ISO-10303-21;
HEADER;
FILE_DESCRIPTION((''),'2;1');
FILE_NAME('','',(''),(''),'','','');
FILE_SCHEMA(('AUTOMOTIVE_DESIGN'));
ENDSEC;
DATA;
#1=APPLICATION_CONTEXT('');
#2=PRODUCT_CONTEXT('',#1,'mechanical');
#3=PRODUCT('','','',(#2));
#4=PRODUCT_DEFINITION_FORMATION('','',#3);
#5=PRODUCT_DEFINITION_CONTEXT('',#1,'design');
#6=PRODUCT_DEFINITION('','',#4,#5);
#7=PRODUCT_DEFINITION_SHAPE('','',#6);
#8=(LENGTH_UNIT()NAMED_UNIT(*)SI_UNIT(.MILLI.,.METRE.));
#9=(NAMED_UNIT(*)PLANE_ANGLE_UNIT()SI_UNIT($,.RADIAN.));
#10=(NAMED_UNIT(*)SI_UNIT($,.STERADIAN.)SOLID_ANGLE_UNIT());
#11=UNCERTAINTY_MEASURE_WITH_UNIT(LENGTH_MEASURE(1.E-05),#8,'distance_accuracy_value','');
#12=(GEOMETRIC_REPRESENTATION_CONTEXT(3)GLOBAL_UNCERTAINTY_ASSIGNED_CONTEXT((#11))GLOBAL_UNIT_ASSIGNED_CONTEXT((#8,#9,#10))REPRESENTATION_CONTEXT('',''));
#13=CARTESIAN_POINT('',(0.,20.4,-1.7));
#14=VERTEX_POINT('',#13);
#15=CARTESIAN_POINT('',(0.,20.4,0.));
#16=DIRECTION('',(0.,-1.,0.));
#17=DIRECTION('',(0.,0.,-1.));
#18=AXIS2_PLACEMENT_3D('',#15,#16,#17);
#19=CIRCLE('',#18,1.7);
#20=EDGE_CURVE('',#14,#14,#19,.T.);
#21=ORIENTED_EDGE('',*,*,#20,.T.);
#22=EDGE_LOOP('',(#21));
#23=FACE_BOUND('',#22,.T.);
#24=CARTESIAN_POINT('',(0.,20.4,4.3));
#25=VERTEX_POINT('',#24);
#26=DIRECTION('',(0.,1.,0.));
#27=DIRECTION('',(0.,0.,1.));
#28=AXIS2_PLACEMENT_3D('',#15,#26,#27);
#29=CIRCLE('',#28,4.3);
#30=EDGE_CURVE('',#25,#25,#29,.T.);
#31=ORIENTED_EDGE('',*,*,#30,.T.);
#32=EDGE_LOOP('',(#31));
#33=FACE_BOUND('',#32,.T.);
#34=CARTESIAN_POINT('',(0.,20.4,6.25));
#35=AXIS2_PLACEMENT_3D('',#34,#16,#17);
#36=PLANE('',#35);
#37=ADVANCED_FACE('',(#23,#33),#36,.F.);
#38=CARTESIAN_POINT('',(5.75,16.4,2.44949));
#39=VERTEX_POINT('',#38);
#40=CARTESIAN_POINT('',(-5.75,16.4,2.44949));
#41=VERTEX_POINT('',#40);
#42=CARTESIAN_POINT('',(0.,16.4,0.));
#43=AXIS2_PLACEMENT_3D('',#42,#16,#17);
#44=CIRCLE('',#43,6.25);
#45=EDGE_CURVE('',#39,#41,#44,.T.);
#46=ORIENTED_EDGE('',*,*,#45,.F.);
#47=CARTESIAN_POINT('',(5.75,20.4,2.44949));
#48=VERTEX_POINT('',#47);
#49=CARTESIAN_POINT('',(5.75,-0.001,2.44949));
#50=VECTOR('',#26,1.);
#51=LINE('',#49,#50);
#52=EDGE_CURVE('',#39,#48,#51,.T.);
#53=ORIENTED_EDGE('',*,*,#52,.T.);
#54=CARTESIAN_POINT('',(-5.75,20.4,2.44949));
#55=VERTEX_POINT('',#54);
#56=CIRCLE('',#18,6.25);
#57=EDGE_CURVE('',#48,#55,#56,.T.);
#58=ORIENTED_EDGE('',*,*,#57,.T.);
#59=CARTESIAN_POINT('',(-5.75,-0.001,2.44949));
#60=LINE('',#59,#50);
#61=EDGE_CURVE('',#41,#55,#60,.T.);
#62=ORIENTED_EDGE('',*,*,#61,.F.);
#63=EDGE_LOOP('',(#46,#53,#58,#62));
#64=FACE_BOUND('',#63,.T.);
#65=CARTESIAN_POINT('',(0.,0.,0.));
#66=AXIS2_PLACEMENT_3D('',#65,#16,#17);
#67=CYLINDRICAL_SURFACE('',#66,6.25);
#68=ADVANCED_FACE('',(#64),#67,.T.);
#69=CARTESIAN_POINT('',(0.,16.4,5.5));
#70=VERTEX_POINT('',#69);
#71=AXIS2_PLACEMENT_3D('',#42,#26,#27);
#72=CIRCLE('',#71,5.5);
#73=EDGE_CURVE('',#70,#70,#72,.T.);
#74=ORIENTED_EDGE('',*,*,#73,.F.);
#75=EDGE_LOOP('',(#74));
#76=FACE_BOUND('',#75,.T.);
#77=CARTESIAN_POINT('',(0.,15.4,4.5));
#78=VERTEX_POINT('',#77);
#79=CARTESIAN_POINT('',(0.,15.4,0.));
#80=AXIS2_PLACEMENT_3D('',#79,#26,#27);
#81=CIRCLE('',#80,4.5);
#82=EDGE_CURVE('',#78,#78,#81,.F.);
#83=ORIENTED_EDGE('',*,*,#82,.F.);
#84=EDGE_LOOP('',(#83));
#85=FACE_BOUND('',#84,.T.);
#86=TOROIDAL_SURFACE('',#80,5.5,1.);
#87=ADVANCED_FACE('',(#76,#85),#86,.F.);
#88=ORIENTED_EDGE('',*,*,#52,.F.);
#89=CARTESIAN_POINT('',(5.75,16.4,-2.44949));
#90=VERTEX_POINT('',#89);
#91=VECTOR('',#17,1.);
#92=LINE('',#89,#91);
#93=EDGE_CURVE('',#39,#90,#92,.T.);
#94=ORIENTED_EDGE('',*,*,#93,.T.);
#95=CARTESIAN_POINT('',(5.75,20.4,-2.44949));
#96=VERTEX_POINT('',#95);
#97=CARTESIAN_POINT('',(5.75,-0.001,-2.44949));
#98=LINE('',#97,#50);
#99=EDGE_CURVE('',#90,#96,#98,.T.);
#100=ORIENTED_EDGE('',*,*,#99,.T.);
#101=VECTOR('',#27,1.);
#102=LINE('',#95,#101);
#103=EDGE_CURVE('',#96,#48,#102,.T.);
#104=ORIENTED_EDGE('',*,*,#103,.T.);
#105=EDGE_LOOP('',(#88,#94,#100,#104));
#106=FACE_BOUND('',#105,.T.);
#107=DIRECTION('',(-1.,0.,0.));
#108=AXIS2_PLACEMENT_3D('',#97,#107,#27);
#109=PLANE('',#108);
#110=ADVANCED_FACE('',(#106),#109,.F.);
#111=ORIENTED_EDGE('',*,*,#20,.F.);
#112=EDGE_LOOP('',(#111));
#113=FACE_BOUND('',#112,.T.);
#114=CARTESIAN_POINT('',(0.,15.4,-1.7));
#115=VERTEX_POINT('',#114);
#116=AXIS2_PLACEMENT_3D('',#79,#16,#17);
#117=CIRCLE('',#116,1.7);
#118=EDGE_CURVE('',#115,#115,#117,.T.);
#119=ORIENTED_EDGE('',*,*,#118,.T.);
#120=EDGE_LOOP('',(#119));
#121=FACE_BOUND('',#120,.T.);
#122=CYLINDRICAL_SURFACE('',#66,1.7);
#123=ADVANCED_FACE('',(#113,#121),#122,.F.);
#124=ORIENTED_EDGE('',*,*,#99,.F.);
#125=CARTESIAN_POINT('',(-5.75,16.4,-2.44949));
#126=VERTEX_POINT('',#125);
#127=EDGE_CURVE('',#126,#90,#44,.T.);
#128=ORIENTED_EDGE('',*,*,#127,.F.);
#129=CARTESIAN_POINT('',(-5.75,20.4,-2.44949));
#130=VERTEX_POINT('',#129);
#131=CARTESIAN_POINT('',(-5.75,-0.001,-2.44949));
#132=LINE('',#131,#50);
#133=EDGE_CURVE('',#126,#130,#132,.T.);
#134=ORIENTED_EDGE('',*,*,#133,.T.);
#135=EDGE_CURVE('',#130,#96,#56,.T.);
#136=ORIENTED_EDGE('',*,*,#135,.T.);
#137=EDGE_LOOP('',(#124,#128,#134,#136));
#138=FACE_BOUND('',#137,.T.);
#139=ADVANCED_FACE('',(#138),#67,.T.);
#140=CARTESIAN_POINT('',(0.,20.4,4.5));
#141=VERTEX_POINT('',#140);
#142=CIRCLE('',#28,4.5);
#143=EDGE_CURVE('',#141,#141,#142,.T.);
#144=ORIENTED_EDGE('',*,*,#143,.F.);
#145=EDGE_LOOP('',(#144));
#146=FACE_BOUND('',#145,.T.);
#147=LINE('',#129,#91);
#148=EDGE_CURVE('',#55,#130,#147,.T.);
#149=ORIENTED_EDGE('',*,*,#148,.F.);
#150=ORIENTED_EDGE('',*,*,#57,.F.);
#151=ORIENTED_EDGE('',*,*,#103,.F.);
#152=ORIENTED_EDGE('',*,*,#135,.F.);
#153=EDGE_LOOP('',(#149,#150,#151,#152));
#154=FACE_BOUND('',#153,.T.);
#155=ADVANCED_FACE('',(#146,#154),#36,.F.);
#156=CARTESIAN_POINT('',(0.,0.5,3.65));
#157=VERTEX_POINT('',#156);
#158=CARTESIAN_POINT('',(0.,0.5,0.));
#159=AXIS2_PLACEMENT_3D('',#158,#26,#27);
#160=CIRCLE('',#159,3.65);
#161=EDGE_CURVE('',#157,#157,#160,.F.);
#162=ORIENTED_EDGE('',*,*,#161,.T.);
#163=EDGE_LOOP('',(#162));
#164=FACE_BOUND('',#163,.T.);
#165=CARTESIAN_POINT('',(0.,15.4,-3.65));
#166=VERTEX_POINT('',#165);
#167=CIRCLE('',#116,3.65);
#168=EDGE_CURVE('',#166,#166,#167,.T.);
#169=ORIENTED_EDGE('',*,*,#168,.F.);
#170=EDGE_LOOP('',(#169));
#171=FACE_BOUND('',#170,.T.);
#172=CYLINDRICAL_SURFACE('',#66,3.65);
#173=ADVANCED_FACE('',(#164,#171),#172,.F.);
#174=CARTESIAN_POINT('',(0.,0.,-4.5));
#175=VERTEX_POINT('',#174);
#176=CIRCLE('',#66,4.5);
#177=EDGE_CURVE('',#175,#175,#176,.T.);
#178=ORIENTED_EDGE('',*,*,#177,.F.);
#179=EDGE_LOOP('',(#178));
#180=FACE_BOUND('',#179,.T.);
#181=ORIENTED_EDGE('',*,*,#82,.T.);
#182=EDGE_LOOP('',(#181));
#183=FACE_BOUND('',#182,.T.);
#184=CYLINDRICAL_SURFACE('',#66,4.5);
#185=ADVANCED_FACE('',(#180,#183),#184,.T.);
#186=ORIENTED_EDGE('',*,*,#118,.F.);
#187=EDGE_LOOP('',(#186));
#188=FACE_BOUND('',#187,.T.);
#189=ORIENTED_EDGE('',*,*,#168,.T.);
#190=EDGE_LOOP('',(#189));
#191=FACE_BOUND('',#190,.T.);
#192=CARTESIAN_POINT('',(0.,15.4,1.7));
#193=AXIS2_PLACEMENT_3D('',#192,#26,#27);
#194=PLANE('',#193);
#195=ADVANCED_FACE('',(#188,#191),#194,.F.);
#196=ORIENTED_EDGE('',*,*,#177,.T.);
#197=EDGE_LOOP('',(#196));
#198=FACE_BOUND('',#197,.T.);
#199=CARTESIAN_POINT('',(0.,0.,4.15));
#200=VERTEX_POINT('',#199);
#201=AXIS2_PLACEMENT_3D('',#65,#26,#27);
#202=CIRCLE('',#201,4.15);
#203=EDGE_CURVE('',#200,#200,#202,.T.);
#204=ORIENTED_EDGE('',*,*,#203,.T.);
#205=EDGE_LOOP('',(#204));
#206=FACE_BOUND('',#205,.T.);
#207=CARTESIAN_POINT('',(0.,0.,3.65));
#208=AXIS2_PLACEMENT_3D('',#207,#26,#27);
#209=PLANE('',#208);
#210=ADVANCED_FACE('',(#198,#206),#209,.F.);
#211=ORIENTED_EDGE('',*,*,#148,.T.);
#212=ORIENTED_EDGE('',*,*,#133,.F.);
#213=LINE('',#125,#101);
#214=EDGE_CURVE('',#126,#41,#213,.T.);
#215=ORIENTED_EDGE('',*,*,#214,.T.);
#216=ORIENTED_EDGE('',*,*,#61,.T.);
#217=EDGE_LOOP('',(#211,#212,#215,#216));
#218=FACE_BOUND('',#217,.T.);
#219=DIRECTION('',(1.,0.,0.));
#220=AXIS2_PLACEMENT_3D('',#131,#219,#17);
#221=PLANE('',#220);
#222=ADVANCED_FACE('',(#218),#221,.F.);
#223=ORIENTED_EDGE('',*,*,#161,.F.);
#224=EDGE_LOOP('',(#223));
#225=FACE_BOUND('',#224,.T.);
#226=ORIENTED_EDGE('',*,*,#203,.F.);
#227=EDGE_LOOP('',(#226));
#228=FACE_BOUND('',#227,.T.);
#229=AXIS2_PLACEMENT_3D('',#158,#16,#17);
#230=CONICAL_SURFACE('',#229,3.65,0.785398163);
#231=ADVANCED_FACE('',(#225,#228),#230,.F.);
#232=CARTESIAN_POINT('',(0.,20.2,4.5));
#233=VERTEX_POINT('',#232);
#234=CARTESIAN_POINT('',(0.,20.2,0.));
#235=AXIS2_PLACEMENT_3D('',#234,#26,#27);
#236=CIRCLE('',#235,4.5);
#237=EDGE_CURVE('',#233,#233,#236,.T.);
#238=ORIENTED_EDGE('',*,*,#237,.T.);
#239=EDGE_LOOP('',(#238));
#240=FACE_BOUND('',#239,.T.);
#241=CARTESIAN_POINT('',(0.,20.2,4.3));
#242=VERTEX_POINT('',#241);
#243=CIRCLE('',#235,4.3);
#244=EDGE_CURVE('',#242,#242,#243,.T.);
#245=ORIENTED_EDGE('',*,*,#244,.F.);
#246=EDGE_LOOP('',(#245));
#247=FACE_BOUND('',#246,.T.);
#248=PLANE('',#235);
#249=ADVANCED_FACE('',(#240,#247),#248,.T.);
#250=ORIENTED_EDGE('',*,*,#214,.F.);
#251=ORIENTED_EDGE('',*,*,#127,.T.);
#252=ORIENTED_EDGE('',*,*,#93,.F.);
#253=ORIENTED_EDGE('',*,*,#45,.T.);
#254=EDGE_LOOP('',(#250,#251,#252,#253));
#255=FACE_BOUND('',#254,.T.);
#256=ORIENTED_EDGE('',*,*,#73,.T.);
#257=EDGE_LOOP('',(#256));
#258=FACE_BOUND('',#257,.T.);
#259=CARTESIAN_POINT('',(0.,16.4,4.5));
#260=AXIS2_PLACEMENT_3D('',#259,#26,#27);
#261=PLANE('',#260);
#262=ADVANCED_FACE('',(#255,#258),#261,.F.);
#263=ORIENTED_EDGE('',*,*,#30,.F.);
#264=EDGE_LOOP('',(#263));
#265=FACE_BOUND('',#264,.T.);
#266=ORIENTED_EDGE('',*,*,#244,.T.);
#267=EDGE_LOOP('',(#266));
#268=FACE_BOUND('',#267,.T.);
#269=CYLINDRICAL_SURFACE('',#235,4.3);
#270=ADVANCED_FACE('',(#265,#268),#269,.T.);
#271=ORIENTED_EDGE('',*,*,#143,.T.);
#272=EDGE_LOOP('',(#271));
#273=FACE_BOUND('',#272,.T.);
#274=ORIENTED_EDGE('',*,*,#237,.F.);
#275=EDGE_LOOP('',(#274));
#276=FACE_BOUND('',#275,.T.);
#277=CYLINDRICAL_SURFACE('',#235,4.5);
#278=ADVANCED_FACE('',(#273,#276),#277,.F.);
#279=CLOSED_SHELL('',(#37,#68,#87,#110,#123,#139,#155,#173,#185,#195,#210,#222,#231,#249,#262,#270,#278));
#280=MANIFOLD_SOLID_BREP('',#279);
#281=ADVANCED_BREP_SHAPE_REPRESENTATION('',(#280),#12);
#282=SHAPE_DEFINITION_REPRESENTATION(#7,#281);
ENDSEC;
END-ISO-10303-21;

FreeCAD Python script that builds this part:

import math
import FreeCAD as App
import Part
import Sketcher

V = App.Vector


def edges_at(feature, points):
    """Names of the edges that pass closest to the given points."""
    edges = feature.Shape.Edges
    near = lambda p: min(range(len(edges)), key=lambda i: edges[i].distToShape(Part.Vertex(*p))[0])
    return sorted({f"Edge{near(p) + 1}" for p in points})

doc = App.newDocument("Part")
body = doc.addObject("PartDesign::Body", "Body")

# Sketch on YZ plane
sketch1 = body.newObject("Sketcher::SketchObject", "Sketch")
sketch1.AttachmentSupport = (doc.getObject("YZ_Plane"), [""])
sketch1.MapMode = "FlatFace"
sketch1.addGeometry(Part.LineSegment(V(0, 4.5, 0), V(0, 3.65, 0)), False)
sketch1.addGeometry(Part.LineSegment(V(0, 3.65, 0), V(15.4, 3.65, 0)), False)
sketch1.addGeometry(Part.LineSegment(V(15.4, 3.65, 0), V(15.4, 1.7, 0)), False)
sketch1.addGeometry(Part.LineSegment(V(15.4, 1.7, 0), V(20.4, 1.7, 0)), False)
sketch1.addGeometry(Part.LineSegment(V(20.4, 1.7, 0), V(20.4, 6.25, 0)), False)
sketch1.addGeometry(Part.LineSegment(V(20.4, 6.25, 0), V(16.4, 6.25, 0)), False)
sketch1.addGeometry(Part.LineSegment(V(16.4, 6.25, 0), V(16.4, 4.5, 0)), False)
sketch1.addGeometry(Part.LineSegment(V(16.4, 4.5, 0), V(0, 4.5, 0)), False)
sketch1.addConstraint(Sketcher.Constraint("Coincident", 0, 2, 1, 1))
sketch1.addConstraint(Sketcher.Constraint("Coincident", 1, 2, 2, 1))
sketch1.addConstraint(Sketcher.Constraint("Coincident", 2, 2, 3, 1))
sketch1.addConstraint(Sketcher.Constraint("Coincident", 3, 2, 4, 1))
sketch1.addConstraint(Sketcher.Constraint("Coincident", 4, 2, 5, 1))
sketch1.addConstraint(Sketcher.Constraint("Coincident", 5, 2, 6, 1))
sketch1.addConstraint(Sketcher.Constraint("Coincident", 6, 2, 7, 1))
sketch1.addConstraint(Sketcher.Constraint("Coincident", 7, 2, 0, 1))
sketch1.addConstraint(Sketcher.Constraint("Vertical", 0))
sketch1.addConstraint(Sketcher.Constraint("Horizontal", 1))
sketch1.addConstraint(Sketcher.Constraint("Vertical", 2))
sketch1.addConstraint(Sketcher.Constraint("Horizontal", 3))
sketch1.addConstraint(Sketcher.Constraint("Vertical", 4))
sketch1.addConstraint(Sketcher.Constraint("Horizontal", 5))
sketch1.addConstraint(Sketcher.Constraint("Vertical", 6))
sketch1.addConstraint(Sketcher.Constraint("Horizontal", 7))
sketch1.addConstraint(Sketcher.Constraint("PointOnObject", 0, 2, -2))
sketch1.addConstraint(Sketcher.Constraint("DistanceX", 3, 1, 3, 2, 5.0))
sketch1.addConstraint(Sketcher.Constraint("DistanceX", 5, 2, 5, 1, 4.0))
sketch1.addConstraint(Sketcher.Constraint("DistanceX", 1, 1, 1, 2, 15.4))
sketch1.addConstraint(Sketcher.Constraint("DistanceY", 0, 2, 0, 1, 0.85))
sketch1.addConstraint(Sketcher.Constraint("DistanceY", 2, 2, 2, 1, 1.95))
sketch1.addConstraint(Sketcher.Constraint("DistanceY", 4, 1, 4, 2, 4.55))
sketch1.addConstraint(Sketcher.Constraint("DistanceY", -1, 1, 2, 2, 1.7))
revolution = body.newObject("PartDesign::Revolution", "Revolution")
revolution.Profile = sketch1
revolution.ReferenceAxis = (sketch1, ["H_Axis"])
revolution.Angle = 360
doc.recompute()

chamfer = body.newObject("PartDesign::Chamfer", "Chamfer")
chamfer.Base = (revolution, edges_at(revolution, [(0, 0, 3.65)]))
chamfer.Size = 0.5
doc.recompute()

fillet = body.newObject("PartDesign::Fillet", "Fillet")
fillet.Base = (chamfer, edges_at(chamfer, [(0, 16.4, 4.5)]))
fillet.Radius = 1

# Sketch on XZ plane
sketch2 = body.newObject("Sketcher::SketchObject", "Sketch001")
sketch2.AttachmentSupport = (doc.getObject("XZ_Plane"), [""])
sketch2.MapMode = "FlatFace"
sketch2.AttachmentOffset = App.Placement(V(0, 0, -20.4), App.Rotation())
sketch2.addGeometry(Part.LineSegment(V(-5.75, 2.44949, 0), V(-5.75, -2.44949, 0)), False)
sketch2.addGeometry(Part.ArcOfCircle(Part.Circle(V(0, 0, 0), V(0, 0, 1), 6.25), math.radians(156.926082), math.radians(203.073918)), False)
sketch2.addConstraint(Sketcher.Constraint("Coincident", 0, 1, 1, 1))
sketch2.addConstraint(Sketcher.Constraint("Coincident", 1, 2, 0, 2))
sketch2.addConstraint(Sketcher.Constraint("Vertical", 0))
sketch2.addConstraint(Sketcher.Constraint("Coincident", 1, 3, -1, 1))
sketch2.addConstraint(Sketcher.Constraint("Radius", 1, 6.25))
sketch2.addConstraint(Sketcher.Constraint("DistanceX", 0, 1, -1, 1, 5.75))
pocket1 = body.newObject("PartDesign::Pocket", "Pocket")
pocket1.Profile = sketch2
pocket1.Type = "UpToFirst"
pocket1.Reversed = True

# Sketch on XZ plane
sketch3 = body.newObject("Sketcher::SketchObject", "Sketch002")
sketch3.AttachmentSupport = (doc.getObject("XZ_Plane"), [""])
sketch3.MapMode = "FlatFace"
sketch3.AttachmentOffset = App.Placement(V(0, 0, -20.4), App.Rotation())
sketch3.addGeometry(Part.LineSegment(V(5.75, -2.44949, 0), V(5.75, 2.44949, 0)), False)
sketch3.addGeometry(Part.ArcOfCircle(Part.Circle(V(0, 0, 0), V(0, 0, 1), 6.25), math.radians(-23.073918), math.radians(23.073918)), False)
sketch3.addConstraint(Sketcher.Constraint("Coincident", 0, 1, 1, 1))
sketch3.addConstraint(Sketcher.Constraint("Coincident", 1, 2, 0, 2))
sketch3.addConstraint(Sketcher.Constraint("Vertical", 0))
sketch3.addConstraint(Sketcher.Constraint("Coincident", 1, 3, -1, 1))
sketch3.addConstraint(Sketcher.Constraint("Radius", 1, 6.25))
sketch3.addConstraint(Sketcher.Constraint("DistanceX", -1, 1, 0, 1, 5.75))
pocket2 = body.newObject("PartDesign::Pocket", "Pocket001")
pocket2.Profile = sketch3
pocket2.Type = "UpToFirst"
pocket2.Reversed = True

# Sketch on XZ plane
sketch4 = body.newObject("Sketcher::SketchObject", "Sketch003")
sketch4.AttachmentSupport = (doc.getObject("XZ_Plane"), [""])
sketch4.MapMode = "FlatFace"
sketch4.AttachmentOffset = App.Placement(V(0, 0, -20.4), App.Rotation())
sketch4.addGeometry(Part.Circle(V(0, 0, 0), V(0, 0, 1), 4.5), False)
sketch4.addGeometry(Part.Circle(V(0, 0, 0), V(0, 0, 1), 4.3), False)
sketch4.addConstraint(Sketcher.Constraint("Coincident", 0, 3, -1, 1))
sketch4.addConstraint(Sketcher.Constraint("Coincident", 1, 3, -1, 1))
sketch4.addConstraint(Sketcher.Constraint("Diameter", 0, 9.0))
sketch4.addConstraint(Sketcher.Constraint("Diameter", 1, 8.6))
pocket3 = body.newObject("PartDesign::Pocket", "Pocket002")
pocket3.Profile = sketch4
pocket3.Length = 0.2
pocket3.Reversed = True

doc.recompute()
